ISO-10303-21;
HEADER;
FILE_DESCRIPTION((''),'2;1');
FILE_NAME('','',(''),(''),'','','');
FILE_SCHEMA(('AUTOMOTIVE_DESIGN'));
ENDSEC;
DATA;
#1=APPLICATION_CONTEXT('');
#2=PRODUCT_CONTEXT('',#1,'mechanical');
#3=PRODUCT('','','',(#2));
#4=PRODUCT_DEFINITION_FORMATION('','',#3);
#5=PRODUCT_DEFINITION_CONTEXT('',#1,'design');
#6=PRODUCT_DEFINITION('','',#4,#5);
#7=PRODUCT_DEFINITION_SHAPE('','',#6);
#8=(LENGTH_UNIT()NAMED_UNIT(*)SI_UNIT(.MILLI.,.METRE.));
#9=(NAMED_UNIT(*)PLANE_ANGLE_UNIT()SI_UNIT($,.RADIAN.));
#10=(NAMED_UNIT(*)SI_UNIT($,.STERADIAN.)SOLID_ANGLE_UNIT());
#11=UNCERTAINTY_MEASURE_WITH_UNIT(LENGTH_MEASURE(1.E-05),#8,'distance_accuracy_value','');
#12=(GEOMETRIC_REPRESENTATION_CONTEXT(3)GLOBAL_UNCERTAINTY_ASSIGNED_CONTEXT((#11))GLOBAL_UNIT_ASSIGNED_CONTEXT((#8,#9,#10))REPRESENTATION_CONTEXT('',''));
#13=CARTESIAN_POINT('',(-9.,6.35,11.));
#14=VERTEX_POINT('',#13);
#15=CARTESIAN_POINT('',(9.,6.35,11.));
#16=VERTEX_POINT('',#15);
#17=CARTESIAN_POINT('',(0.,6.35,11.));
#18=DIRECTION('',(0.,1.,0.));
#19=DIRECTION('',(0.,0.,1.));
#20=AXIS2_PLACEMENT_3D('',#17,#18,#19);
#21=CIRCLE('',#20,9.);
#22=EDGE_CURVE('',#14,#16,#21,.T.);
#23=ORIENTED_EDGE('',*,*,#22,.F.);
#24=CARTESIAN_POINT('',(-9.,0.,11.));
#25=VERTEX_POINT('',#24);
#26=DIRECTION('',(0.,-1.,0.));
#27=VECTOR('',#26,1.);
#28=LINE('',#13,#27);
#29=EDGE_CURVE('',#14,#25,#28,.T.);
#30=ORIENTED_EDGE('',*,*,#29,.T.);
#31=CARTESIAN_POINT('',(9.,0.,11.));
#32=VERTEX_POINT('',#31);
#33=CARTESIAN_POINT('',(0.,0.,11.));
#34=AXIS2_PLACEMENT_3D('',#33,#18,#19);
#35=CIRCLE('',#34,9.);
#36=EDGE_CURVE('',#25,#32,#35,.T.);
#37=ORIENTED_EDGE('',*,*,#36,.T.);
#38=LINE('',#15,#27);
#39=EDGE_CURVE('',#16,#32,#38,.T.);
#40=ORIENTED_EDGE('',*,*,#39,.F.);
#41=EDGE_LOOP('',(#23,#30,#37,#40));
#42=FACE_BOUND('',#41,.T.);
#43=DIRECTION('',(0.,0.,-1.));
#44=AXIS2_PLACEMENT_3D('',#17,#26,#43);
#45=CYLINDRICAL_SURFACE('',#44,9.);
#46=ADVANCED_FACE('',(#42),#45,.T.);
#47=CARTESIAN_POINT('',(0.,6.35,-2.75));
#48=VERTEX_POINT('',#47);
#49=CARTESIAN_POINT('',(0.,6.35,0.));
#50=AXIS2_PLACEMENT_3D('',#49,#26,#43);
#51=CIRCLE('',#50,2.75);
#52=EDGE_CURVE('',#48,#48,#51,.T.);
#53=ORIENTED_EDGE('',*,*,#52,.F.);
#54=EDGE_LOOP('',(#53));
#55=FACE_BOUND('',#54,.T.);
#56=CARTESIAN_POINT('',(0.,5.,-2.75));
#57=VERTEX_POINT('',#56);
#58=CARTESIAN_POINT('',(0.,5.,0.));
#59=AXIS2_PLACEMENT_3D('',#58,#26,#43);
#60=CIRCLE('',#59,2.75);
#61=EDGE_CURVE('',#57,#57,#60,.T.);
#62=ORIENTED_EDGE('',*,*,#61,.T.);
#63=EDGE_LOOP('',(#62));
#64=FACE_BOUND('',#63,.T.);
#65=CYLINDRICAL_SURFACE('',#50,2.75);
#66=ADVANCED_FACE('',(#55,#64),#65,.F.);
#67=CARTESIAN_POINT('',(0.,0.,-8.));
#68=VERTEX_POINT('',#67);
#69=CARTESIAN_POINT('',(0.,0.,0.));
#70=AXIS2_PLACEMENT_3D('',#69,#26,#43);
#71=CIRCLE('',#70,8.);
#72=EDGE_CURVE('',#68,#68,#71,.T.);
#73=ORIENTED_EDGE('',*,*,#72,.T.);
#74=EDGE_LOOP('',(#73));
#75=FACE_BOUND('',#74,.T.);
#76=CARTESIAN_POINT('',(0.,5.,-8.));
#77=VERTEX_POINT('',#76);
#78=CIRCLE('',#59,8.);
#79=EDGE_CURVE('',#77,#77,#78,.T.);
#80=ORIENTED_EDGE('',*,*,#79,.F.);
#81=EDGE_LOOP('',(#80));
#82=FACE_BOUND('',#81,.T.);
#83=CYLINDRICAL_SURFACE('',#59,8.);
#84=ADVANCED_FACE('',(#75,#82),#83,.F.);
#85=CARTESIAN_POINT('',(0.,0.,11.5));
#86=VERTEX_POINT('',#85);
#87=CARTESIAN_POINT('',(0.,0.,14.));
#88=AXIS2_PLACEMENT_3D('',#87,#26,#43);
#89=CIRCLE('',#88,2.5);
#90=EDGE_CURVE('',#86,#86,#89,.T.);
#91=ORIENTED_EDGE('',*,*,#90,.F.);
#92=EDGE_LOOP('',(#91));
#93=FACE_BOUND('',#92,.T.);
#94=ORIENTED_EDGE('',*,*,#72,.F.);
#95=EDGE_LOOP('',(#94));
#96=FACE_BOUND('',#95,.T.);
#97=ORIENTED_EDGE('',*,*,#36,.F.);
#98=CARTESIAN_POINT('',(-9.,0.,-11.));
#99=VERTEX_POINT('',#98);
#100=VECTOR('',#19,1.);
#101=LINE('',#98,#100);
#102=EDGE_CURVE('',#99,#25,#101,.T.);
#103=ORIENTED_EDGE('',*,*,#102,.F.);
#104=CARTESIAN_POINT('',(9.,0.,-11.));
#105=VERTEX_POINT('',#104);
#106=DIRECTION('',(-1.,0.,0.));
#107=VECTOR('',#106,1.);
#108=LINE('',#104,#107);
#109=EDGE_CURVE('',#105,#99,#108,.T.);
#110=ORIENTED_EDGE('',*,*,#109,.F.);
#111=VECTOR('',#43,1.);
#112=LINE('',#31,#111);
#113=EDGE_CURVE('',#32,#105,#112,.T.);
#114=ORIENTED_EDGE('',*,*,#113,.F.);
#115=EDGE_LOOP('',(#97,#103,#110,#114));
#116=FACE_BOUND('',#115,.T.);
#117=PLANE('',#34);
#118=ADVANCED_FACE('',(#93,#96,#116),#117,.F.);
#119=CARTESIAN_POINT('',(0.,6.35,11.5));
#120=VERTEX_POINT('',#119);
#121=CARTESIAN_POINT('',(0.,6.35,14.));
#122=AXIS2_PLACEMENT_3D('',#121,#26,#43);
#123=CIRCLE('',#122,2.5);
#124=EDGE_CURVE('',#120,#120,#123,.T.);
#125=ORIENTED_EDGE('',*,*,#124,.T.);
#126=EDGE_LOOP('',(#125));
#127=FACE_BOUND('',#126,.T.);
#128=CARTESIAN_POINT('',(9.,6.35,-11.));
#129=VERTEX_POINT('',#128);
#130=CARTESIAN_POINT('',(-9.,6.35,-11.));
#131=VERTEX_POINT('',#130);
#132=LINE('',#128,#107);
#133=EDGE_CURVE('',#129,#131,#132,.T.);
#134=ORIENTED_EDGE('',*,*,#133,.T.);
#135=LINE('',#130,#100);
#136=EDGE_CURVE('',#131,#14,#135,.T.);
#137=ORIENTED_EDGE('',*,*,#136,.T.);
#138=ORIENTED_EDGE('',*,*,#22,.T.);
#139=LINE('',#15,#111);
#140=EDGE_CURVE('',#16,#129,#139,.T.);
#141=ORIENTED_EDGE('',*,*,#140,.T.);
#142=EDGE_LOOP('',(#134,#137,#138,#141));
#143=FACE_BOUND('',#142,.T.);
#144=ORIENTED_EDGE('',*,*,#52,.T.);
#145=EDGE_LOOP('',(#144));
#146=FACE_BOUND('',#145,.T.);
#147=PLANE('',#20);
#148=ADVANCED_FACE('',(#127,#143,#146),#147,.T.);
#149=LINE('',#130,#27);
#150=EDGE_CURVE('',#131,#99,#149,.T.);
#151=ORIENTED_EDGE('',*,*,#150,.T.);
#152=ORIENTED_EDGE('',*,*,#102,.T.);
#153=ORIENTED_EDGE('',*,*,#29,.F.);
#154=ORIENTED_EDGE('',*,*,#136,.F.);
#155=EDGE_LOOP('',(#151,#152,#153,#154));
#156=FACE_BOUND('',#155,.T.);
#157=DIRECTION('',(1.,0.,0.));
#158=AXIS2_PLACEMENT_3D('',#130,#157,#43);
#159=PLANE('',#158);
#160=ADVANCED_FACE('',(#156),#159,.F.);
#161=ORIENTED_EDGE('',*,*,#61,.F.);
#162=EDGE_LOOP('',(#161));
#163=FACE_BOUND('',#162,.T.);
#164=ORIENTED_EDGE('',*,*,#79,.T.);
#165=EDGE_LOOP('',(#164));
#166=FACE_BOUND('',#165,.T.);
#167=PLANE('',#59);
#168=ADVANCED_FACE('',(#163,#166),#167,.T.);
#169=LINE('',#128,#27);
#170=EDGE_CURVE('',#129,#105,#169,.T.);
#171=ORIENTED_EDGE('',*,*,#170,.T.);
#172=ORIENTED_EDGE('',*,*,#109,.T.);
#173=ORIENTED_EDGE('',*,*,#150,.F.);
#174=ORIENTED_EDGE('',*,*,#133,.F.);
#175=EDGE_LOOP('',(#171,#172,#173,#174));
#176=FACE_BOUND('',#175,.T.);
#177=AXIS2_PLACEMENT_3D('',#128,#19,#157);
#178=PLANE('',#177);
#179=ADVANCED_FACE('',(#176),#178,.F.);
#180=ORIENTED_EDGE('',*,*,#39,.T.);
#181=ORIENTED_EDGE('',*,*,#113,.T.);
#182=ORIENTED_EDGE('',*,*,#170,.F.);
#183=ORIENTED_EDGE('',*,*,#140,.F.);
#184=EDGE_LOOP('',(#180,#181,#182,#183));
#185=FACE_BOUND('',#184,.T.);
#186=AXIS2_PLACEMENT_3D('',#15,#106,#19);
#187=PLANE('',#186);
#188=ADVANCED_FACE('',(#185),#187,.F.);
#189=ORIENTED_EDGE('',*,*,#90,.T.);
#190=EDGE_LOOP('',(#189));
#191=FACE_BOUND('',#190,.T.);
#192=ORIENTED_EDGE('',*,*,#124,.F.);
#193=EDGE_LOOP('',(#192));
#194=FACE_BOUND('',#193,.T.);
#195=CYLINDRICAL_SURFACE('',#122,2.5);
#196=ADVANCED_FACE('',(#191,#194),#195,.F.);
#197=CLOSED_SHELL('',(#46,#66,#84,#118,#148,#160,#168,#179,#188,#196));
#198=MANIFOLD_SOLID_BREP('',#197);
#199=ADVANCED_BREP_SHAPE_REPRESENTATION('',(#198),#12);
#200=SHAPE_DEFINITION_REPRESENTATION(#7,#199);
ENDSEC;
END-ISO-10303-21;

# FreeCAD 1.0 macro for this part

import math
import FreeCAD as App
import Part
import Sketcher
from FreeCAD import Vector

doc = App.newDocument("Part")
body = doc.addObject("PartDesign::Body", "Body")

sketch1 = body.newObject("Sketcher::SketchObject", "Sketch")
sketch1.AttachmentSupport = (doc.getObject("XZ_Plane"), [""])
sketch1.MapMode = "FlatFace"
sketch1.addGeometry([
    Part.LineSegment(Vector(9, -11, 0), Vector(-9, -11, 0)),
    Part.LineSegment(Vector(-9, -11, 0), Vector(-9, 11, 0)),
    Part.ArcOfCircle(Part.Circle(Vector(0, 11, 0), Vector(0, 0, 1), 9), math.radians(0), math.radians(180)),
    Part.LineSegment(Vector(9, 11, 0), Vector(9, -11, 0)),
], False)
sketch1.addConstraint([
    Sketcher.Constraint("Coincident", 0, 2, 1, 1),
    Sketcher.Constraint("Tangent", 1, 2, 2, 2),
    Sketcher.Constraint("Tangent", 2, 1, 3, 1),
    Sketcher.Constraint("Coincident", 3, 2, 0, 1),
    Sketcher.Constraint("Horizontal", 0),
    Sketcher.Constraint("Vertical", 1),
    Sketcher.Constraint("Vertical", 3),
    Sketcher.Constraint("Symmetric", 0, 2, 2, 1, -1, 1),
    Sketcher.Constraint("Radius", 2, 9.0),
    Sketcher.Constraint("DistanceY", 1, 1, 1, 2, 22.0),
])
pad1 = body.newObject("PartDesign::Pad", "Pad")
pad1.Profile = sketch1
pad1.Length = 6.35
pad1.Reversed = True

sketch2 = body.newObject("Sketcher::SketchObject", "Sketch001")
sketch2.AttachmentSupport = (doc.getObject("XZ_Plane"), [""])
sketch2.MapMode = "FlatFace"
sketch2.addGeometry(Part.Circle(Vector(0, 0, 0), Vector(0, 0, 1), 8), False)
sketch2.addConstraint([
    Sketcher.Constraint("Coincident", 0, 3, -1, 1),
    Sketcher.Constraint("Diameter", 0, 16.0),
])
pocket1 = body.newObject("PartDesign::Pocket", "Pocket")
pocket1.Profile = sketch2
pocket1.Length = 5

sketch3 = body.newObject("Sketcher::SketchObject", "Sketch002")
sketch3.AttachmentSupport = (doc.getObject("XZ_Plane"), [""])
sketch3.MapMode = "FlatFace"
sketch3.AttachmentOffset = App.Placement(Vector(0, 0, -5), App.Rotation())
sketch3.addGeometry(Part.Circle(Vector(0, 0, 0), Vector(0, 0, 1), 2.8), False)
sketch3.addConstraint([
    Sketcher.Constraint("Coincident", 0, 3, -1, 1),
    Sketcher.Constraint("Diameter", 0, 5.5),
])
pocket2 = body.newObject("PartDesign::Pocket", "Pocket001")
pocket2.Profile = sketch3
pocket2.Type = "ThroughAll"

sketch4 = body.newObject("Sketcher::SketchObject", "Sketch003")
sketch4.AttachmentSupport = (doc.getObject("XZ_Plane"), [""])
sketch4.MapMode = "FlatFace"
sketch4.addGeometry([
    Part.Circle(Vector(0, 14, 0), Vector(0, 0, 1), 2.5),
    Part.Circle(Vector(0, -13.5, 0), Vector(0, 0, 1), 2.5),
], False)
sketch4.addConstraint([
    Sketcher.Constraint("Equal", 0, 1),
    Sketcher.Constraint("PointOnObject", 0, 3, -2),
    Sketcher.Constraint("PointOnObject", 1, 3, -2),
    Sketcher.Constraint("Diameter", 0, 5.0),
    Sketcher.Constraint("DistanceY", -1, 1, 0, 3, 14.0),
    Sketcher.Constraint("DistanceY", 1, 3, -1, 1, 13.5),
])
pocket3 = body.newObject("PartDesign::Pocket", "Pocket002")
pocket3.Profile = sketch4
pocket3.Type = "ThroughAll"

doc.recompute()
